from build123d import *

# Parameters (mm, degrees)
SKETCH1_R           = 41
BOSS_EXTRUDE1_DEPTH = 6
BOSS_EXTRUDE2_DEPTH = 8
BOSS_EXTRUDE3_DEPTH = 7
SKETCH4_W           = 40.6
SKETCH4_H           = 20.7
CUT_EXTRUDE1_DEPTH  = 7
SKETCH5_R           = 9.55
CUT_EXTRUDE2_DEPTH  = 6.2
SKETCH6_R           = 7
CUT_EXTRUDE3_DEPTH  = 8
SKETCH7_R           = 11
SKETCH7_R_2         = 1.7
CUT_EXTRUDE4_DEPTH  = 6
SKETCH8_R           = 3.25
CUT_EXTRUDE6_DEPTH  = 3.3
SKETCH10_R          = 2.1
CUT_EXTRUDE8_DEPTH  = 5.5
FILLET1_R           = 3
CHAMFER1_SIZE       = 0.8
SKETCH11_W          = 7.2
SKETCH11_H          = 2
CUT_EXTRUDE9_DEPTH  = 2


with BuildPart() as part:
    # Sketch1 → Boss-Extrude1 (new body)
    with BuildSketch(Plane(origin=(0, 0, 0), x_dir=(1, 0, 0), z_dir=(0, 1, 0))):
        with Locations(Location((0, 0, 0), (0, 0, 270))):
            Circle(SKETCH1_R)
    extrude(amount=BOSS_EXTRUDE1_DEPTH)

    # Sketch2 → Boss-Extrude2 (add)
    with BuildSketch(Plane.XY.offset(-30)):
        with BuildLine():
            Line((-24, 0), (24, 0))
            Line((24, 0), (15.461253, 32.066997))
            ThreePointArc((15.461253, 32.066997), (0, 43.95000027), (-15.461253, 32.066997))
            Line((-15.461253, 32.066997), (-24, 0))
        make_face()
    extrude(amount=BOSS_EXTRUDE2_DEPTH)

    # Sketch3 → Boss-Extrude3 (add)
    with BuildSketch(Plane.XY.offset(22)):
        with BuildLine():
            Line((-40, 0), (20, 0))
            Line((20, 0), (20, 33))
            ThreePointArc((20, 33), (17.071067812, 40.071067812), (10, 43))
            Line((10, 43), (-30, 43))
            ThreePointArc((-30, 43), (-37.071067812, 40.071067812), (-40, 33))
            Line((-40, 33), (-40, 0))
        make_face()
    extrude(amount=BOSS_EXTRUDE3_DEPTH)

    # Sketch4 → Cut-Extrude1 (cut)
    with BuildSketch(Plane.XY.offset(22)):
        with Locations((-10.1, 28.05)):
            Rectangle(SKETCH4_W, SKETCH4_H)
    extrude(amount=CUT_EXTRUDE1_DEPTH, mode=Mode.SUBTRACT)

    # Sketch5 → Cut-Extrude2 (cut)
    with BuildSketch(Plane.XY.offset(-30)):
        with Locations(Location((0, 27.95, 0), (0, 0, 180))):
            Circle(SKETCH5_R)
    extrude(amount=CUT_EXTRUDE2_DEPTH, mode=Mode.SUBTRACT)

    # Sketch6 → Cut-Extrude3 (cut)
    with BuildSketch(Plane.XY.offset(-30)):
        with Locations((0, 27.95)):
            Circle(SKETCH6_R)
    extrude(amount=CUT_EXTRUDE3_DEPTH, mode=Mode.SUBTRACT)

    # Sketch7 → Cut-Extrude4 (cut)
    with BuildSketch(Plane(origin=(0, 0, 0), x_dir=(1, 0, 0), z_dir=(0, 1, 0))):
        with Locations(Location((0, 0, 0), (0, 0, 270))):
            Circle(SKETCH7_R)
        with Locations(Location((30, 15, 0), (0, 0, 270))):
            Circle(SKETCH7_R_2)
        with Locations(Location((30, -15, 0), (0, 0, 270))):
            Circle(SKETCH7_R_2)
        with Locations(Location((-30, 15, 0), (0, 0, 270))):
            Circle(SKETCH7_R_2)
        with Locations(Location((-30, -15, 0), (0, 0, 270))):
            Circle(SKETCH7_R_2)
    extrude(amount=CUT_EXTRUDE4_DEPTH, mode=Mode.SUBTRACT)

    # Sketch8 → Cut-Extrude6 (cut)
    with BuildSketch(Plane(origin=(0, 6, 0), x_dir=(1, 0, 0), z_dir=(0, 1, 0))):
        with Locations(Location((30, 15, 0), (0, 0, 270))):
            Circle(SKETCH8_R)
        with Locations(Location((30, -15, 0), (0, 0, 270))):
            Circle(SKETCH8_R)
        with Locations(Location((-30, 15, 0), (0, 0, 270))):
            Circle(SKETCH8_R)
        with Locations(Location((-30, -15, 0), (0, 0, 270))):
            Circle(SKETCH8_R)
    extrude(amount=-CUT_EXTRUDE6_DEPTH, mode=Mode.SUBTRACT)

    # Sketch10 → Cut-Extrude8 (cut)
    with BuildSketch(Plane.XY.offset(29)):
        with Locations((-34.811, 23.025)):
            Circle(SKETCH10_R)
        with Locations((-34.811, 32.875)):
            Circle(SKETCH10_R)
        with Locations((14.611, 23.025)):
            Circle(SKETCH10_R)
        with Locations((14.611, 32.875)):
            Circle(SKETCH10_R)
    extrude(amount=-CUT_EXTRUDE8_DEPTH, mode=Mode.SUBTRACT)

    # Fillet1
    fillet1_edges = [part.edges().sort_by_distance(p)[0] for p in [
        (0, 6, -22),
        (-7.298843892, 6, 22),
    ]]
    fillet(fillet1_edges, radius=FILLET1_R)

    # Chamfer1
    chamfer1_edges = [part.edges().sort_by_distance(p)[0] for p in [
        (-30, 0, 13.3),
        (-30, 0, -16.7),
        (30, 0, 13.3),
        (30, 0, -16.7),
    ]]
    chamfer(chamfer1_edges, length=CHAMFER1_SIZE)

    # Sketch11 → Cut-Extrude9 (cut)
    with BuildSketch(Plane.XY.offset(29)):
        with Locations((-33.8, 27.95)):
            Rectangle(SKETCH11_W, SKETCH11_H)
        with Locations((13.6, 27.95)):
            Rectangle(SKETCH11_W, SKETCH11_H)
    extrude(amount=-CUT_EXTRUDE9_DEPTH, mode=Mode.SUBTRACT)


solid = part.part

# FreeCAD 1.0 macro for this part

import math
import FreeCAD as App
import Part
import Sketcher

V = App.Vector


def edges_at(feature, points):
    """Names of the edges that pass closest to the given points."""
    edges = feature.Shape.Edges
    near = lambda p: min(range(len(edges)), key=lambda i: edges[i].distToShape(Part.Vertex(*p))[0])
    return sorted({f"Edge{near(p) + 1}" for p in points})

doc = App.newDocument("Part")
body = doc.addObject("PartDesign::Body", "Body")

# Sketch on XZ plane
sketch1 = doc.addObject("Sketcher::SketchObject", "Sketch")
body.addObject(sketch1)
sketch1.AttachmentSupport = (doc.XZ_Plane, [""])
sketch1.MapMode = "FlatFace"
sketch1.addGeometry(Part.Circle(V(0, 0, 0), V(0, 0, 1), 41), False)
sketch1.addConstraint([
    Sketcher.Constraint("Coincident", 0, 3, -1, 1),
    Sketcher.Constraint("Diameter", 0, 82.0),
])
pad1 = doc.addObject("PartDesign::Pad", "Pad")
body.addObject(pad1)
pad1.Profile = sketch1
pad1.Length = 6
pad1.Reversed = True

# Sketch on XY plane
sketch2 = doc.addObject("Sketcher::SketchObject", "Sketch001")
body.addObject(sketch2)
sketch2.AttachmentSupport = (doc.XY_Plane, [""])
sketch2.MapMode = "FlatFace"
sketch2.AttachmentOffset = App.Placement(V(0, 0, -30), App.Rotation())
sketch2.addGeometry([
    Part.LineSegment(V(-24, 0, 0), V(24, 0, 0)),
    Part.LineSegment(V(24, 0, 0), V(15.461253, 32.066997, 0)),
    Part.ArcOfCircle(Part.Circle(V(0, 27.95, 0), V(0, 0, 1), 16), math.radians(14.910644), math.radians(165.089356)),
    Part.LineSegment(V(-15.461253, 32.066997, 0), V(-24, 0, 0)),
], False)
sketch2.addConstraint([
    Sketcher.Constraint("Coincident", 0, 2, 1, 1),
    Sketcher.Constraint("Tangent", 1, 2, 2, 1),
    Sketcher.Constraint("Tangent", 2, 2, 3, 1),
    Sketcher.Constraint("Coincident", 3, 2, 0, 1),
    Sketcher.Constraint("Horizontal", 0),
    Sketcher.Constraint("Symmetric", 0, 2, 3, 2, -1, 1),
    Sketcher.Constraint("PointOnObject", 2, 3, -2),
    Sketcher.Constraint("Radius", 2, 16.0),
    Sketcher.Constraint("DistanceX", 0, 1, 0, 2, 48.0),
    Sketcher.Constraint("DistanceY", -1, 1, 2, 3, 27.95),
])
pad2 = doc.addObject("PartDesign::Pad", "Pad001")
body.addObject(pad2)
pad2.Profile = sketch2
pad2.Length = 8

# Sketch on XY plane
sketch3 = doc.addObject("Sketcher::SketchObject", "Sketch002")
body.addObject(sketch3)
sketch3.AttachmentSupport = (doc.XY_Plane, [""])
sketch3.MapMode = "FlatFace"
sketch3.AttachmentOffset = App.Placement(V(0, 0, 22), App.Rotation())
sketch3.addGeometry([
    Part.LineSegment(V(-40, 0, 0), V(20, 0, 0)),  # 0
    Part.LineSegment(V(20, 0, 0), V(20, 33, 0)),  # 1
    Part.ArcOfCircle(Part.Circle(V(10, 33, 0), V(0, 0, 1), 10), math.radians(0), math.radians(90)),  # 2
    Part.LineSegment(V(10, 43, 0), V(-30, 43, 0)),  # 3
    Part.ArcOfCircle(Part.Circle(V(-30, 33, 0), V(0, 0, 1), 10), math.radians(90), math.radians(180)),  # 4
    Part.LineSegment(V(-40, 33, 0), V(-40, 0, 0)),  # 5
], False)
sketch3.addConstraint([
    Sketcher.Constraint("Coincident", 0, 2, 1, 1),
    Sketcher.Constraint("Tangent", 1, 2, 2, 1),
    Sketcher.Constraint("Tangent", 2, 2, 3, 1),
    Sketcher.Constraint("Tangent", 3, 2, 4, 1),
    Sketcher.Constraint("Tangent", 4, 2, 5, 1),
    Sketcher.Constraint("Coincident", 5, 2, 0, 1),
    Sketcher.Constraint("Horizontal", 0),
    Sketcher.Constraint("Vertical", 1),
    Sketcher.Constraint("Horizontal", 3),
    Sketcher.Constraint("Vertical", 5),
    Sketcher.Constraint("Equal", 2, 4),
    Sketcher.Constraint("PointOnObject", 0, 2, -1),
    Sketcher.Constraint("Radius", 2, 10.0),
    Sketcher.Constraint("DistanceX", 0, 1, 0, 2, 60.0),
    Sketcher.Constraint("DistanceY", 1, 1, 1, 2, 33.0),
    Sketcher.Constraint("DistanceX", -1, 1, 2, 3, 10.0),
])
pad3 = doc.addObject("PartDesign::Pad", "Pad002")
body.addObject(pad3)
pad3.Profile = sketch3
pad3.Length = 7

# Sketch on XY plane
sketch4 = doc.addObject("Sketcher::SketchObject", "Sketch003")
body.addObject(sketch4)
sketch4.AttachmentSupport = (doc.XY_Plane, [""])
sketch4.MapMode = "FlatFace"
sketch4.AttachmentOffset = App.Placement(V(0, 0, 22), App.Rotation())
sketch4.addGeometry([
    Part.LineSegment(V(-30.4, 38.4, 0), V(-30.4, 17.7, 0)),
    Part.LineSegment(V(-30.4, 17.7, 0), V(10.2, 17.7, 0)),
    Part.LineSegment(V(10.2, 17.7, 0), V(10.2, 38.4, 0)),
    Part.LineSegment(V(10.2, 38.4, 0), V(-30.4, 38.4, 0)),
], False)
sketch4.addConstraint([
    Sketcher.Constraint("Coincident", 0, 2, 1, 1),
    Sketcher.Constraint("Coincident", 1, 2, 2, 1),
    Sketcher.Constraint("Coincident", 2, 2, 3, 1),
    Sketcher.Constraint("Coincident", 3, 2, 0, 1),
    Sketcher.Constraint("Vertical", 0),
    Sketcher.Constraint("Horizontal", 1),
    Sketcher.Constraint("Vertical", 2),
    Sketcher.Constraint("Horizontal", 3),
    Sketcher.Constraint("DistanceX", 1, 1, 1, 2, 40.6),
    Sketcher.Constraint("DistanceY", 0, 2, 0, 1, 20.7),
    Sketcher.Constraint("DistanceX", 0, 2, -1, 1, 30.4),
    Sketcher.Constraint("DistanceY", -1, 1, 0, 2, 17.7),
])
pocket1 = doc.addObject("PartDesign::Pocket", "Pocket")
body.addObject(pocket1)
pocket1.Profile = sketch4
pocket1.Length = 7
pocket1.Reversed = True

# Sketch on XY plane
sketch5 = doc.addObject("Sketcher::SketchObject", "Sketch004")
body.addObject(sketch5)
sketch5.AttachmentSupport = (doc.XY_Plane, [""])
sketch5.MapMode = "FlatFace"
sketch5.AttachmentOffset = App.Placement(V(0, 0, -30), App.Rotation())
sketch5.addGeometry(Part.Circle(V(0, 27.95, 0), V(0, 0, 1), 9.55), False)
sketch5.addConstraint([
    Sketcher.Constraint("PointOnObject", 0, 3, -2),
    Sketcher.Constraint("Diameter", 0, 19.1),
    Sketcher.Constraint("DistanceY", -1, 1, 0, 3, 27.95),
])
pocket2 = doc.addObject("PartDesign::Pocket", "Pocket001")
body.addObject(pocket2)
pocket2.Profile = sketch5
pocket2.Length = 6.2
pocket2.Reversed = True

# Sketch on XY plane
sketch6 = doc.addObject("Sketcher::SketchObject", "Sketch005")
body.addObject(sketch6)
sketch6.AttachmentSupport = (doc.XY_Plane, [""])
sketch6.MapMode = "FlatFace"
sketch6.AttachmentOffset = App.Placement(V(0, 0, -30), App.Rotation())
sketch6.addGeometry(Part.Circle(V(0, 27.95, 0), V(0, 0, 1), 7), False)
sketch6.addConstraint([
    Sketcher.Constraint("PointOnObject", 0, 3, -2),
    Sketcher.Constraint("Diameter", 0, 14.0),
    Sketcher.Constraint("DistanceY", -1, 1, 0, 3, 27.95),
])
pocket3 = doc.addObject("PartDesign::Pocket", "Pocket002")
body.addObject(pocket3)
pocket3.Profile = sketch6
pocket3.Length = 8
pocket3.Reversed = True

# Sketch on XZ plane
sketch7 = doc.addObject("Sketcher::SketchObject", "Sketch006")
body.addObject(sketch7)
sketch7.AttachmentSupport = (doc.XZ_Plane, [""])
sketch7.MapMode = "FlatFace"
sketch7.addGeometry([
    Part.Circle(V(0, 0, 0), V(0, 0, 1), 11),  # 0
    Part.Circle(V(30, -15, 0), V(0, 0, 1), 1.7),  # 1
    Part.Circle(V(30, 15, 0), V(0, 0, 1), 1.7),  # 2
    Part.Circle(V(-30, -15, 0), V(0, 0, 1), 1.7),  # 3
    Part.Circle(V(-30, 15, 0), V(0, 0, 1), 1.7),  # 4
], False)
sketch7.addConstraint([
    Sketcher.Constraint("Coincident", 0, 3, -1, 1),
    Sketcher.Constraint("Equal", 1, 2),
    Sketcher.Constraint("Equal", 2, 3),
    Sketcher.Constraint("Equal", 3, 4),
    Sketcher.Constraint("Symmetric", 2, 3, 3, 3, -1, 1),
    Sketcher.Constraint("Symmetric", 1, 3, 4, 3, -1, 1),
    Sketcher.Constraint("Symmetric", 1, 3, 3, 3, -2),
    Sketcher.Constraint("Diameter", 0, 22.0),
    Sketcher.Constraint("Diameter", 1, 3.4),
    Sketcher.Constraint("DistanceX", -1, 1, 1, 3, 30.0),
    Sketcher.Constraint("DistanceY", 1, 3, -1, 1, 15.0),
])
pocket4 = doc.addObject("PartDesign::Pocket", "Pocket003")
body.addObject(pocket4)
pocket4.Profile = sketch7
pocket4.Length = 6

# Sketch on XZ plane
sketch8 = doc.addObject("Sketcher::SketchObject", "Sketch007")
body.addObject(sketch8)
sketch8.AttachmentSupport = (doc.XZ_Plane, [""])
sketch8.MapMode = "FlatFace"
sketch8.AttachmentOffset = App.Placement(V(0, 0, -6), App.Rotation())
sketch8.addGeometry([
    Part.Circle(V(30, -15, 0), V(0, 0, 1), 3.25),
    Part.Circle(V(30, 15, 0), V(0, 0, 1), 3.25),
    Part.Circle(V(-30, -15, 0), V(0, 0, 1), 3.25),
    Part.Circle(V(-30, 15, 0), V(0, 0, 1), 3.25),
], False)
sketch8.addConstraint([
    Sketcher.Constraint("Equal", 0, 1),
    Sketcher.Constraint("Equal", 1, 2),
    Sketcher.Constraint("Equal", 2, 3),
    Sketcher.Constraint("Symmetric", 1, 3, 2, 3, -1, 1),
    Sketcher.Constraint("Symmetric", 0, 3, 3, 3, -1, 1),
    Sketcher.Constraint("Symmetric", 0, 3, 2, 3, -2),
    Sketcher.Constraint("Diameter", 0, 6.5),
    Sketcher.Constraint("DistanceX", -1, 1, 0, 3, 30.0),
    Sketcher.Constraint("DistanceY", 0, 3, -1, 1, 15.0),
])
pocket5 = doc.addObject("PartDesign::Pocket", "Pocket004")
body.addObject(pocket5)
pocket5.Profile = sketch8
pocket5.Length = 3.3
pocket5.Reversed = True

# Sketch on XY plane
sketch9 = doc.addObject("Sketcher::SketchObject", "Sketch008")
body.addObject(sketch9)
sketch9.AttachmentSupport = (doc.XY_Plane, [""])
sketch9.MapMode = "FlatFace"
sketch9.AttachmentOffset = App.Placement(V(0, 0, 29), App.Rotation())
sketch9.addGeometry([
    Part.Circle(V(-34.811, 23.025, 0), V(0, 0, 1), 2.1),
    Part.Circle(V(-34.811, 32.875, 0), V(0, 0, 1), 2.1),
    Part.Circle(V(14.611, 23.025, 0), V(0, 0, 1), 2.1),
    Part.Circle(V(14.611, 32.875, 0), V(0, 0, 1), 2.1),
], False)
sketch9.addConstraint([
    Sketcher.Constraint("Equal", 0, 1),
    Sketcher.Constraint("Equal", 1, 2),
    Sketcher.Constraint("Equal", 2, 3),
    Sketcher.Constraint("Horizontal", 0, 3, 2, 3),
    Sketcher.Constraint("Horizontal", 1, 3, 3, 3),
    Sketcher.Constraint("Vertical", 0, 3, 1, 3),
    Sketcher.Constraint("Vertical", 2, 3, 3, 3),
    Sketcher.Constraint("Diameter", 0, 4.2),
    Sketcher.Constraint("DistanceY", 0, 3, 1, 3, 9.85),
    Sketcher.Constraint("DistanceX", 0, 3, -1, 1, 34.811),
    Sketcher.Constraint("DistanceY", -1, 1, 0, 3, 23.025),
    Sketcher.Constraint("DistanceX", -1, 1, 2, 3, 14.611),
])
pocket6 = doc.addObject("PartDesign::Pocket", "Pocket005")
body.addObject(pocket6)
pocket6.Profile = sketch9
pocket6.Length = 5.5
doc.recompute()

fillet = doc.addObject("PartDesign::Fillet", "Fillet")
body.addObject(fillet)
fillet.Base = (pocket6, edges_at(pocket6, [(0, 6, -22), (-7.299, 6, 22)]))
fillet.Radius = 3
doc.recompute()

chamfer = doc.addObject("PartDesign::Chamfer", "Chamfer")
body.addObject(chamfer)
chamfer.Base = (fillet, edges_at(fillet, [
    (-30, 0, 13.3),
    (-30, 0, -16.7),
    (30, 0, 13.3),
    (30, 0, -16.7),
]))
chamfer.Size = 0.8

# Sketch on XY plane
sketch10 = doc.addObject("Sketcher::SketchObject", "Sketch009")
body.addObject(sketch10)
sketch10.AttachmentSupport = (doc.XY_Plane, [""])
sketch10.MapMode = "FlatFace"
sketch10.AttachmentOffset = App.Placement(V(0, 0, 29), App.Rotation())
sketch10.addGeometry([
    Part.LineSegment(V(-37.4, 28.95, 0), V(-37.4, 26.95, 0)),  # 0
    Part.LineSegment(V(-37.4, 26.95, 0), V(-30.2, 26.95, 0)),  # 1
    Part.LineSegment(V(-30.2, 26.95, 0), V(-30.2, 28.95, 0)),  # 2
    Part.LineSegment(V(-30.2, 28.95, 0), V(-37.4, 28.95, 0)),  # 3
    Part.LineSegment(V(10, 28.95, 0), V(10, 26.95, 0)),  # 4
    Part.LineSegment(V(10, 26.95, 0), V(17.2, 26.95, 0)),  # 5
    Part.LineSegment(V(17.2, 26.95, 0), V(17.2, 28.95, 0)),  # 6
    Part.LineSegment(V(17.2, 28.95, 0), V(10, 28.95, 0)),  # 7
], False)
sketch10.addConstraint([
    Sketcher.Constraint("Coincident", 0, 2, 1, 1),
    Sketcher.Constraint("Coincident", 1, 2, 2, 1),
    Sketcher.Constraint("Coincident", 2, 2, 3, 1),
    Sketcher.Constraint("Coincident", 3, 2, 0, 1),
    Sketcher.Constraint("Coincident", 4, 2, 5, 1),
    Sketcher.Constraint("Coincident", 5, 2, 6, 1),
    Sketcher.Constraint("Coincident", 6, 2, 7, 1),
    Sketcher.Constraint("Coincident", 7, 2, 4, 1),
    Sketcher.Constraint("Vertical", 0),
    Sketcher.Constraint("Horizontal", 1),
    Sketcher.Constraint("Vertical", 2),
    Sketcher.Constraint("Horizontal", 3),
    Sketcher.Constraint("Vertical", 4),
    Sketcher.Constraint("Horizontal", 5),
    Sketcher.Constraint("Vertical", 6),
    Sketcher.Constraint("Horizontal", 7),
    Sketcher.Constraint("Horizontal", 1, 2, 4, 2),
    Sketcher.Constraint("Horizontal", 3, 2, 6, 2),
    Sketcher.Constraint("Equal", 3, 5),
    Sketcher.Constraint("DistanceY", 0, 2, 0, 1, 2.0),
    Sketcher.Constraint("DistanceX", 1, 1, 1, 2, 7.2),
    Sketcher.Constraint("DistanceX", -1, 1, 4, 2, 10.0),
    Sketcher.Constraint("DistanceX", 0, 2, -1, 1, 37.4),
    Sketcher.Constraint("DistanceY", -1, 1, 0, 2, 26.95),
])
pocket7 = doc.addObject("PartDesign::Pocket", "Pocket006")
body.addObject(pocket7)
pocket7.Profile = sketch10
pocket7.Length = 2

doc.recompute()
